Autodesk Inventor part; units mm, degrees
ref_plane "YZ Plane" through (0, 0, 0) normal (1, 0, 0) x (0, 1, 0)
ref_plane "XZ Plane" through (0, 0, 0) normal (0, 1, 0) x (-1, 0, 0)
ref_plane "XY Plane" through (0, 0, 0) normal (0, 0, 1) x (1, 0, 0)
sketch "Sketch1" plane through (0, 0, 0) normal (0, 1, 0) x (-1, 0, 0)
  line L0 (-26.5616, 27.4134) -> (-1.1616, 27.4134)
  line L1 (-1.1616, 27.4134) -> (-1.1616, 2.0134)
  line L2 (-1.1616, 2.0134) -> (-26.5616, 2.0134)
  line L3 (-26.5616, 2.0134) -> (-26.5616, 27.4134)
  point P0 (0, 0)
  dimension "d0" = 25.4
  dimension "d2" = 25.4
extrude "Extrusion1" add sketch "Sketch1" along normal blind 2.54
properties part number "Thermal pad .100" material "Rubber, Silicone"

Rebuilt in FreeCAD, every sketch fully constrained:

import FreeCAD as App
import Part
import Sketcher
from FreeCAD import Vector
Q = App.Units.Quantity

doc = App.newDocument("Part")
params = doc.addObject("Spreadsheet::Sheet", "Params")
for row, (alias, value) in enumerate([
    ("sketch1_width", "1 in"),
    ("pad1_length", "0.1 in"),
], start=1):
    params.set(f"A{row}", alias)
    params.set(f"B{row}", "=" + value)
    params.setAlias(f"B{row}", alias)

body = doc.addObject("PartDesign::Body", "Body")

# Sketch on XZ plane
sketch1 = body.newObject("Sketcher::SketchObject", "Sketch")
sketch1.AttachmentSupport = (doc.getObject("XZ_Plane"), [""])
sketch1.MapMode = "FlatFace"
sketch1.addGeometry(Part.LineSegment(Vector(1, 27, 0), Vector(27, 27, 0)), False)
sketch1.addGeometry(Part.LineSegment(Vector(27, 27, 0), Vector(27, 2, 0)), False)
sketch1.addGeometry(Part.LineSegment(Vector(27, 2, 0), Vector(1, 2, 0)), False)
sketch1.addGeometry(Part.LineSegment(Vector(1, 2, 0), Vector(1, 27, 0)), False)
sketch1.addConstraint(Sketcher.Constraint("Coincident", 0, 2, 1, 1))
sketch1.addConstraint(Sketcher.Constraint("Coincident", 1, 2, 2, 1))
sketch1.addConstraint(Sketcher.Constraint("Coincident", 2, 2, 3, 1))
sketch1.addConstraint(Sketcher.Constraint("Coincident", 3, 2, 0, 1))
sketch1.addConstraint(Sketcher.Constraint("Horizontal", 0))
sketch1.addConstraint(Sketcher.Constraint("Vertical", 1))
sketch1.addConstraint(Sketcher.Constraint("Horizontal", 2))
sketch1.addConstraint(Sketcher.Constraint("Vertical", 3))
sketch1.addConstraint(Sketcher.Constraint("Equal", 2, 1))
sketch1.addConstraint(Sketcher.Constraint("DistanceX", 0, 1, 0, 2, Q("1 in")))
sketch1.addConstraint(Sketcher.Constraint("DistanceX", -1, 1, 0, 2, 26.5616))
sketch1.addConstraint(Sketcher.Constraint("DistanceY", -1, 1, 0, 2, 27.4134))
sketch1.setExpression("Constraints[9]", "Params.sketch1_width")
pad1 = body.newObject("PartDesign::Pad", "Pad")
pad1.Profile = sketch1
pad1.setExpression("Length", "Params.pad1_length")
pad1.Reversed = True

doc.recompute()
